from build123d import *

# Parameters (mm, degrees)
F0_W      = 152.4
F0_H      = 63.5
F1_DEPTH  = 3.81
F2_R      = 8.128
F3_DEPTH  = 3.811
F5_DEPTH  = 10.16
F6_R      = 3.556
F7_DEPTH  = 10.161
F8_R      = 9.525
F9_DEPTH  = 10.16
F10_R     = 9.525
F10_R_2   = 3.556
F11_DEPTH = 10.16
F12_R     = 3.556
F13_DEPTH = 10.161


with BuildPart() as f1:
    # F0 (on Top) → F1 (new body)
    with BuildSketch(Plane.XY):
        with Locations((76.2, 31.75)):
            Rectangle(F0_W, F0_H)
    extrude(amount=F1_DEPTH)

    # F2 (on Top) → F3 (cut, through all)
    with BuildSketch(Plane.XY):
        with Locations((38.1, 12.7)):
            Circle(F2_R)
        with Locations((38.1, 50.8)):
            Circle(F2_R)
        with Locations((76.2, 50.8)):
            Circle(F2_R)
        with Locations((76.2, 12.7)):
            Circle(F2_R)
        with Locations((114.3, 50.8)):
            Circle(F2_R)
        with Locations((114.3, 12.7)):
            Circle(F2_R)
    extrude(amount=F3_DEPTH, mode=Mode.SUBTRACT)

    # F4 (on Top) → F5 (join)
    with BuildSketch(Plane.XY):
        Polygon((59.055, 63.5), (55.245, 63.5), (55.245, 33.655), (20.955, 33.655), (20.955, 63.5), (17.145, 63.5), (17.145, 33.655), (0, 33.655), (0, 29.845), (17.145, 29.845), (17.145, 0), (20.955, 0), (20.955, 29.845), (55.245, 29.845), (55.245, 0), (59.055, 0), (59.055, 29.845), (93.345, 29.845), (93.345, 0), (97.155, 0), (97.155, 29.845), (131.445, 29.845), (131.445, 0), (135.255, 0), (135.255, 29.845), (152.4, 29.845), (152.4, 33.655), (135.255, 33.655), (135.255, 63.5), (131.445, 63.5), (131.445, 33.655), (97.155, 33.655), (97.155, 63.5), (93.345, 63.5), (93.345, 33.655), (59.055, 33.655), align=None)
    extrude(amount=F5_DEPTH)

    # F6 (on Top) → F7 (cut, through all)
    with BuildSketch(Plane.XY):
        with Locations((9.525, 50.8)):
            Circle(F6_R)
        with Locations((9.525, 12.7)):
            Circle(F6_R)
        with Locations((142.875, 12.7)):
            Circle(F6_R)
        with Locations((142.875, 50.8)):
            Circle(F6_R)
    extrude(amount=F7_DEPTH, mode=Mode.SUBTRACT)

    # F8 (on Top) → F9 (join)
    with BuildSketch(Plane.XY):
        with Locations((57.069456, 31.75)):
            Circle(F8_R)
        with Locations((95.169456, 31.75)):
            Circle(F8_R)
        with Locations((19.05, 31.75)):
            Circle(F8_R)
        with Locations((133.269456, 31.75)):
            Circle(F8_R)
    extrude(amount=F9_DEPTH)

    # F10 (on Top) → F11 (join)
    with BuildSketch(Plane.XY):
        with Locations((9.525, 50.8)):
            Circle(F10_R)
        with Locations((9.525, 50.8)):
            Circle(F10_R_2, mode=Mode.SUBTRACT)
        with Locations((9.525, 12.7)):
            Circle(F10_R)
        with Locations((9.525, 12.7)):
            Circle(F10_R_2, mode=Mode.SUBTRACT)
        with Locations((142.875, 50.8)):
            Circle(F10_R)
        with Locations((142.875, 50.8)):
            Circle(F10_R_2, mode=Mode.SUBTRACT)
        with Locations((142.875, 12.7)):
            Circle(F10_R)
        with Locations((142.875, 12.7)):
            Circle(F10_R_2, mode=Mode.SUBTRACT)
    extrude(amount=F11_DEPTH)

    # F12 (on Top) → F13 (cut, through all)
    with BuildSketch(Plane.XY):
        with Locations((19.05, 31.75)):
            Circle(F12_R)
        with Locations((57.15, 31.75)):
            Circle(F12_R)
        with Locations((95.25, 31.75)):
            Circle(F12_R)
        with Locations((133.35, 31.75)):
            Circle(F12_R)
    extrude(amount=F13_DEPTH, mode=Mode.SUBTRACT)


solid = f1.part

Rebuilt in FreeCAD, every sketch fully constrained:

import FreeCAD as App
import Part
import Sketcher
Q = App.Units.Quantity


def add_polygon(sketch, points):
    """Adds a closed chain of lines whose ends are joined by coincident constraints."""
    first, n = sketch.GeometryCount, len(points)
    for a, b in zip(points, points[1:] + points[:1]):
        sketch.addGeometry(Part.LineSegment(App.Vector(*a, 0), App.Vector(*b, 0)), False)
    for i in range(n):
        sketch.addConstraint(Sketcher.Constraint("Coincident", first + i, 2, first + (i + 1) % n, 1))

doc = App.newDocument("Part")
params = doc.addObject("Spreadsheet::Sheet", "Params")
for row, (alias, value) in enumerate([
    ("sketch1_width", "6 in"),
    ("sketch1_height", "2.5 in"),
    ("pad1_length", "0.15 in"),
    ("sketch2_diameter", "0.64 in"),
    ("sketch3_width", "0.15 in"),
    ("sketch3_width2", "1.35 in"),
    ("pad2_length", "0.4 in"),
    ("sketch4_diameter", "0.28 in"),
    ("sketch5_diameter", "0.75 in"),
    ("pad3_length", "0.4 in"),
    ("sketch6_diameter", "0.75 in"),
    ("sketch6_diameter2", "0.28 in"),
    ("pad4_length", "0.4 in"),
    ("sketch7_diameter", "0.28 in"),
], start=1):
    params.set(f"A{row}", alias)
    params.set(f"B{row}", "=" + value)
    params.setAlias(f"B{row}", alias)

body = doc.addObject("PartDesign::Body", "Body")

# Sketch on XY plane
sketch1 = doc.addObject("Sketcher::SketchObject", "Sketch")
body.addObject(sketch1)
sketch1.AttachmentSupport = (doc.XY_Plane, [""])
sketch1.MapMode = "FlatFace"
add_polygon(sketch1, [(0, 64), (0, 0), (152, 0), (152, 64)])  # lines 0-3
sketch1.addConstraint([
    Sketcher.Constraint("Vertical", 0),
    Sketcher.Constraint("Horizontal", 1),
    Sketcher.Constraint("Vertical", 2),
    Sketcher.Constraint("Horizontal", 3),
    Sketcher.Constraint("Coincident", 0, 2, -1, 1),
    Sketcher.Constraint("DistanceX", 1, 1, 1, 2, Q("6 in")),
    Sketcher.Constraint("DistanceY", 0, 2, 0, 1, Q("2.5 in")),
])
sketch1.setExpression("Constraints[9]", "Params.sketch1_width")
sketch1.setExpression("Constraints[10]", "Params.sketch1_height")
pad1 = doc.addObject("PartDesign::Pad", "Pad")
body.addObject(pad1)
pad1.Profile = sketch1
pad1.setExpression("Length", "Params.pad1_length")

# Sketch on XY plane
sketch2 = doc.addObject("Sketcher::SketchObject", "Sketch001")
body.addObject(sketch2)
sketch2.AttachmentSupport = (doc.XY_Plane, [""])
sketch2.MapMode = "FlatFace"
sketch2.addGeometry([
    Part.Circle(App.Vector(38, 13, 0), App.Vector(0, 0, 1), 8),  # 0
    Part.Circle(App.Vector(38, 51, 0), App.Vector(0, 0, 1), 8),  # 1
    Part.Circle(App.Vector(76, 51, 0), App.Vector(0, 0, 1), 8),  # 2
    Part.Circle(App.Vector(76, 13, 0), App.Vector(0, 0, 1), 8),  # 3
    Part.Circle(App.Vector(114, 51, 0), App.Vector(0, 0, 1), 8),  # 4
    Part.Circle(App.Vector(114, 13, 0), App.Vector(0, 0, 1), 8),  # 5
], False)
sketch2.addConstraint([
    Sketcher.Constraint("Equal", 0, 1),
    Sketcher.Constraint("Equal", 1, 2),
    Sketcher.Constraint("Equal", 2, 3),
    Sketcher.Constraint("Equal", 3, 4),
    Sketcher.Constraint("Equal", 4, 5),
    Sketcher.Constraint("Horizontal", 1, 3, 2, 3),
    Sketcher.Constraint("Horizontal", 0, 3, 3, 3),
    Sketcher.Constraint("Horizontal", 2, 3, 4, 3),
    Sketcher.Constraint("Horizontal", 3, 3, 5, 3),
    Sketcher.Constraint("Vertical", 0, 3, 1, 3),
    Sketcher.Constraint("Vertical", 2, 3, 3, 3),
    Sketcher.Constraint("Vertical", 4, 3, 5, 3),
    Sketcher.Constraint("Diameter", 0, Q("0.64 in")),
    Sketcher.Constraint("DistanceY", -1, 1, 1, 3, Q("2 in")),
    Sketcher.Constraint("DistanceX", -1, 1, 2, 3, Q("3 in")),
    Sketcher.Constraint("DistanceX", 1, 3, 4, 3, Q("3 in")),
    Sketcher.Constraint("DistanceX", -1, 1, 0, 3, Q("1.5 in")),
    Sketcher.Constraint("DistanceY", -1, 1, 0, 3, Q("0.5 in")),
])
sketch2.setExpression("Constraints[12]", "Params.sketch2_diameter")
pocket1 = doc.addObject("PartDesign::Pocket", "Pocket")
body.addObject(pocket1)
pocket1.Profile = sketch2
pocket1.Type = "ThroughAll"
pocket1.Reversed = True

# Sketch on XY plane
sketch3 = doc.addObject("Sketcher::SketchObject", "Sketch002")
body.addObject(sketch3)
sketch3.AttachmentSupport = (doc.XY_Plane, [""])
sketch3.MapMode = "FlatFace"
add_polygon(sketch3, [(59.1, 63.5), (55.2, 63.5), (55.2, 33.7), (21, 33.7), (21, 63.5), (17.1, 63.5), (17.1, 33.7), (0, 33.7), (0, 29.8), (17.1, 29.8), (17.1, 0), (21, 0), (21, 29.8), (55.2, 29.8), (55.2, 0), (59.1, 0), (59.1, 29.8), (93.3, 29.8), (93.3, 0), (97.2, 0), (97.2, 29.8), (131.4, 29.8), (131.4, 0), (135.3, 0), (135.3, 29.8), (152.4, 29.8), (152.4, 33.7), (135.3, 33.7), (135.3, 63.5), (131.4, 63.5), (131.4, 33.7), (97.2, 33.7), (97.2, 63.5), (93.3, 63.5), (93.3, 33.7), (59.1, 33.7)])  # lines 0-35
sketch3.addConstraint([
    Sketcher.Constraint("Horizontal", 0),
    Sketcher.Constraint("Vertical", 1),
    Sketcher.Constraint("Horizontal", 2),
    Sketcher.Constraint("Vertical", 3),
    Sketcher.Constraint("Horizontal", 4),
    Sketcher.Constraint("Vertical", 5),
    Sketcher.Constraint("Horizontal", 6),
    Sketcher.Constraint("Vertical", 7),
    Sketcher.Constraint("Horizontal", 8),
    Sketcher.Constraint("Vertical", 9),
    Sketcher.Constraint("Horizontal", 10),
    Sketcher.Constraint("Vertical", 11),
    Sketcher.Constraint("Horizontal", 12),
    Sketcher.Constraint("Vertical", 13),
    Sketcher.Constraint("Horizontal", 14),
    Sketcher.Constraint("Vertical", 15),
    Sketcher.Constraint("Horizontal", 16),
    Sketcher.Constraint("Vertical", 17),
    Sketcher.Constraint("Horizontal", 18),
    Sketcher.Constraint("Vertical", 19),
    Sketcher.Constraint("Horizontal", 20),
    Sketcher.Constraint("Vertical", 21),
    Sketcher.Constraint("Horizontal", 22),
    Sketcher.Constraint("Vertical", 23),
    Sketcher.Constraint("Horizontal", 24),
    Sketcher.Constraint("Vertical", 25),
    Sketcher.Constraint("Horizontal", 26),
    Sketcher.Constraint("Vertical", 27),
    Sketcher.Constraint("Horizontal", 28),
    Sketcher.Constraint("Vertical", 29),
    Sketcher.Constraint("Horizontal", 30),
    Sketcher.Constraint("Vertical", 31),
    Sketcher.Constraint("Horizontal", 32),
    Sketcher.Constraint("Vertical", 33),
    Sketcher.Constraint("Horizontal", 34),
    Sketcher.Constraint("Vertical", 35),
    Sketcher.Constraint("PointOnObject", 6, 2, -2),
    Sketcher.Constraint("PointOnObject", 9, 2, -1),
    Sketcher.Constraint("PointOnObject", 13, 2, -1),
    Sketcher.Constraint("PointOnObject", 17, 2, -1),
    Sketcher.Constraint("PointOnObject", 21, 2, -1),
    Sketcher.Constraint("Horizontal", 0, 2, 3, 2),
    Sketcher.Constraint("Horizontal", 2, 2, 5, 2),
    Sketcher.Constraint("Horizontal", 8, 2, 11, 2),
    Sketcher.Constraint("Horizontal", 12, 2, 15, 2),
    Sketcher.Constraint("Horizontal", 16, 2, 19, 2),
    Sketcher.Constraint("Horizontal", 20, 2, 23, 2),
    Sketcher.Constraint("Horizontal", 6, 2, 25, 2),
    Sketcher.Constraint("Horizontal", 4, 2, 27, 2),
    Sketcher.Constraint("Horizontal", 26, 2, 29, 2),
    Sketcher.Constraint("Horizontal", 28, 2, 31, 2),
    Sketcher.Constraint("Horizontal", 30, 2, 33, 2),
    Sketcher.Constraint("Vertical", 5, 2, 8, 2),
    Sketcher.Constraint("Vertical", 3, 2, 10, 2),
    Sketcher.Constraint("Vertical", 1, 2, 12, 2),
    Sketcher.Constraint("Vertical", 23, 2, 26, 2),
    Sketcher.Constraint("Vertical", 21, 2, 28, 2),
    Sketcher.Constraint("Vertical", 19, 2, 30, 2),
    Sketcher.Constraint("Vertical", 17, 2, 32, 2),
    Sketcher.Constraint("Vertical", 15, 2, 34, 2),
    Sketcher.Constraint("Equal", 0, 4),
    Sketcher.Constraint("Equal", 12, 16),
    Sketcher.Constraint("Equal", 14, 18),
    Sketcher.Constraint("Equal", 16, 20),
    Sketcher.Constraint("Equal", 18, 22),
    Sketcher.Constraint("Equal", 8, 24),
    Sketcher.Constraint("Equal", 32, 7),
    Sketcher.Constraint("Equal", 5, 9),
    Sketcher.Constraint("DistanceX", -1, 1, 24, 2, Q("6 in")),
    Sketcher.Constraint("DistanceX", 0, 2, 0, 1, Q("0.15 in")),
    Sketcher.Constraint("DistanceX", 2, 2, 2, 1, Q("1.35 in")),
    Sketcher.Constraint("DistanceY", -1, 1, 0, 2, Q("2.5 in")),
])
sketch3.setExpression("Constraints[105]", "Params.sketch3_width")
sketch3.setExpression("Constraints[106]", "Params.sketch3_width2")
pad2 = doc.addObject("PartDesign::Pad", "Pad001")
body.addObject(pad2)
pad2.Profile = sketch3
pad2.setExpression("Length", "Params.pad2_length")

# Sketch on XY plane
sketch4 = doc.addObject("Sketcher::SketchObject", "Sketch003")
body.addObject(sketch4)
sketch4.AttachmentSupport = (doc.XY_Plane, [""])
sketch4.MapMode = "FlatFace"
sketch4.addGeometry([
    Part.Circle(App.Vector(9.5, 50.8, 0), App.Vector(0, 0, 1), 3.6),
    Part.Circle(App.Vector(9.5, 12.7, 0), App.Vector(0, 0, 1), 3.6),
    Part.Circle(App.Vector(142.9, 12.7, 0), App.Vector(0, 0, 1), 3.6),
    Part.Circle(App.Vector(142.9, 50.8, 0), App.Vector(0, 0, 1), 3.6),
], False)
sketch4.addConstraint([
    Sketcher.Constraint("Equal", 0, 1),
    Sketcher.Constraint("Equal", 1, 2),
    Sketcher.Constraint("Equal", 2, 3),
    Sketcher.Constraint("Horizontal", 1, 3, 2, 3),
    Sketcher.Constraint("Horizontal", 0, 3, 3, 3),
    Sketcher.Constraint("Vertical", 0, 3, 1, 3),
    Sketcher.Constraint("Vertical", 2, 3, 3, 3),
    Sketcher.Constraint("Diameter", 0, Q("0.28 in")),
    Sketcher.Constraint("DistanceY", -1, 1, 0, 3, Q("2 in")),
    Sketcher.Constraint("DistanceY", -1, 1, 1, 3, Q("0.5 in")),
    Sketcher.Constraint("DistanceX", 1, 3, 2, 3, Q("5.25 in")),
    Sketcher.Constraint("DistanceX", -1, 1, 0, 3, Q("0.375 in")),
])
sketch4.setExpression("Constraints[7]", "Params.sketch4_diameter")
pocket2 = doc.addObject("PartDesign::Pocket", "Pocket001")
body.addObject(pocket2)
pocket2.Profile = sketch4
pocket2.Type = "ThroughAll"
pocket2.Reversed = True

# Sketch on XY plane
sketch5 = doc.addObject("Sketcher::SketchObject", "Sketch004")
body.addObject(sketch5)
sketch5.AttachmentSupport = (doc.XY_Plane, [""])
sketch5.MapMode = "FlatFace"
sketch5.addGeometry([
    Part.Circle(App.Vector(57, 32, 0), App.Vector(0, 0, 1), 10),
    Part.Circle(App.Vector(95, 32, 0), App.Vector(0, 0, 1), 10),
    Part.Circle(App.Vector(19, 32, 0), App.Vector(0, 0, 1), 10),
    Part.Circle(App.Vector(133, 32, 0), App.Vector(0, 0, 1), 10),
], False)
sketch5.addConstraint([
    Sketcher.Constraint("Equal", 0, 1),
    Sketcher.Constraint("Equal", 1, 2),
    Sketcher.Constraint("Equal", 2, 3),
    Sketcher.Constraint("Horizontal", 0, 3, 1, 3),
    Sketcher.Constraint("Horizontal", 1, 3, 2, 3),
    Sketcher.Constraint("Horizontal", 2, 3, 3, 3),
    Sketcher.Constraint("Diameter", 0, Q("0.75 in")),
    Sketcher.Constraint("DistanceX", 0, 3, 3, 3, Q("3 in")),
    Sketcher.Constraint("DistanceX", 0, 3, 1, 3, Q("1.5 in")),
    Sketcher.Constraint("DistanceY", -1, 1, 0, 3, Q("1.25 in")),
    Sketcher.Constraint("DistanceX", -1, 1, 2, 3, Q("0.75 in")),
    Sketcher.Constraint("DistanceX", -1, 1, 0, 3, Q("57.069456 mm")),
])
sketch5.setExpression("Constraints[6]", "Params.sketch5_diameter")
pad3 = doc.addObject("PartDesign::Pad", "Pad002")
body.addObject(pad3)
pad3.Profile = sketch5
pad3.setExpression("Length", "Params.pad3_length")

# Sketch on XY plane
sketch6 = doc.addObject("Sketcher::SketchObject", "Sketch005")
body.addObject(sketch6)
sketch6.AttachmentSupport = (doc.XY_Plane, [""])
sketch6.MapMode = "FlatFace"
sketch6.addGeometry([
    Part.Circle(App.Vector(9.5, 50.8, 0), App.Vector(0, 0, 1), 9.5),  # 0
    Part.Circle(App.Vector(9.5, 50.8, 0), App.Vector(0, 0, 1), 3.6),  # 1
    Part.Circle(App.Vector(9.5, 12.7, 0), App.Vector(0, 0, 1), 9.5),  # 2
    Part.Circle(App.Vector(9.5, 12.7, 0), App.Vector(0, 0, 1), 3.6),  # 3
    Part.Circle(App.Vector(142.9, 50.8, 0), App.Vector(0, 0, 1), 9.5),  # 4
    Part.Circle(App.Vector(142.9, 50.8, 0), App.Vector(0, 0, 1), 3.6),  # 5
    Part.Circle(App.Vector(142.9, 12.7, 0), App.Vector(0, 0, 1), 9.5),  # 6
    Part.Circle(App.Vector(142.9, 12.7, 0), App.Vector(0, 0, 1), 3.6),  # 7
], False)
sketch6.addConstraint([
    Sketcher.Constraint("Coincident", 1, 3, 0, 3),
    Sketcher.Constraint("Coincident", 3, 3, 2, 3),
    Sketcher.Constraint("Coincident", 5, 3, 4, 3),
    Sketcher.Constraint("Coincident", 7, 3, 6, 3),
    Sketcher.Constraint("Equal", 0, 2),
    Sketcher.Constraint("Equal", 1, 3),
    Sketcher.Constraint("Equal", 2, 4),
    Sketcher.Constraint("Equal", 3, 5),
    Sketcher.Constraint("Equal", 4, 6),
    Sketcher.Constraint("Equal", 5, 7),
    Sketcher.Constraint("Horizontal", 1, 3, 4, 3),
    Sketcher.Constraint("Horizontal", 3, 3, 6, 3),
    Sketcher.Constraint("Vertical", 1, 3, 2, 3),
    Sketcher.Constraint("Vertical", 5, 3, 6, 3),
    Sketcher.Constraint("Diameter", 0, Q("0.75 in")),
    Sketcher.Constraint("Diameter", 1, Q("0.28 in")),
    Sketcher.Constraint("DistanceY", -1, 1, 0, 3, Q("2 in")),
    Sketcher.Constraint("DistanceY", -1, 1, 2, 3, Q("0.5 in")),
    Sketcher.Constraint("DistanceX", 0, 3, 4, 3, Q("5.25 in")),
    Sketcher.Constraint("DistanceX", -1, 1, 0, 3, Q("0.375 in")),
])
sketch6.setExpression("Constraints[14]", "Params.sketch6_diameter")
sketch6.setExpression("Constraints[15]", "Params.sketch6_diameter2")
pad4 = doc.addObject("PartDesign::Pad", "Pad003")
body.addObject(pad4)
pad4.Profile = sketch6
pad4.setExpression("Length", "Params.pad4_length")

# Sketch on XY plane
sketch7 = doc.addObject("Sketcher::SketchObject", "Sketch006")
body.addObject(sketch7)
sketch7.AttachmentSupport = (doc.XY_Plane, [""])
sketch7.MapMode = "FlatFace"
sketch7.addGeometry([
    Part.Circle(App.Vector(19.1, 31.8, 0), App.Vector(0, 0, 1), 3.6),
    Part.Circle(App.Vector(57.1, 31.8, 0), App.Vector(0, 0, 1), 3.6),
    Part.Circle(App.Vector(95.2, 31.8, 0), App.Vector(0, 0, 1), 3.6),
    Part.Circle(App.Vector(133.3, 31.8, 0), App.Vector(0, 0, 1), 3.6),
], False)
sketch7.addConstraint([
    Sketcher.Constraint("Equal", 0, 1),
    Sketcher.Constraint("Equal", 1, 2),
    Sketcher.Constraint("Equal", 2, 3),
    Sketcher.Constraint("Horizontal", 0, 3, 1, 3),
    Sketcher.Constraint("Horizontal", 1, 3, 2, 3),
    Sketcher.Constraint("Horizontal", 2, 3, 3, 3),
    Sketcher.Constraint("Diameter", 0, Q("0.28 in")),
    Sketcher.Constraint("DistanceX", 0, 3, 2, 3, Q("3 in")),
    Sketcher.Constraint("DistanceX", 1, 3, 3, 3, Q("3 in")),
    Sketcher.Constraint("DistanceX", 0, 3, 1, 3, Q("1.5 in")),
    Sketcher.Constraint("DistanceX", -1, 1, 0, 3, Q("0.75 in")),
    Sketcher.Constraint("DistanceY", -1, 1, 0, 3, Q("1.25 in")),
])
sketch7.setExpression("Constraints[6]", "Params.sketch7_diameter")
pocket3 = doc.addObject("PartDesign::Pocket", "Pocket002")
body.addObject(pocket3)
pocket3.Profile = sketch7
pocket3.Type = "ThroughAll"
pocket3.Reversed = True

doc.recompute()
